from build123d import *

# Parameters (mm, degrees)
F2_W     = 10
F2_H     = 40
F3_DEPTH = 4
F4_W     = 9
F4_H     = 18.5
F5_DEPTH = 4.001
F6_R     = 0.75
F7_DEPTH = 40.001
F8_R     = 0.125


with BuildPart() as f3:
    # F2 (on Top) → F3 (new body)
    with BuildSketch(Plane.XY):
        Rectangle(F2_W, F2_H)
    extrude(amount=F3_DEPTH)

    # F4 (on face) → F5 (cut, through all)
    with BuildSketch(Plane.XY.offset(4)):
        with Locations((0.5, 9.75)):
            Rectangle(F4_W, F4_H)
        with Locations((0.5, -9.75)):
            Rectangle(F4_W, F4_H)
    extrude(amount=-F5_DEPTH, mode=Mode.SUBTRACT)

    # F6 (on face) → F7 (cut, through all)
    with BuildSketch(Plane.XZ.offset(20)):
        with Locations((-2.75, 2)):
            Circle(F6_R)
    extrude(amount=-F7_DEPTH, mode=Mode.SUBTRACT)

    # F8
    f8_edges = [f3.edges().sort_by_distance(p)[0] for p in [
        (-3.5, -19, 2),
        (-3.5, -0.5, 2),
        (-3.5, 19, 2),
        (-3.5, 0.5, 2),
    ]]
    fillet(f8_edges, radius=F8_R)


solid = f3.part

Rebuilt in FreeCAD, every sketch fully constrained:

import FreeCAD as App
import Part
import Sketcher
from FreeCAD import Vector


def edges_at(feature, points):
    """Names of the edges that pass closest to the given points."""
    edges = feature.Shape.Edges
    near = lambda p: min(range(len(edges)), key=lambda i: edges[i].distToShape(Part.Vertex(*p))[0])
    return sorted({f"Edge{near(p) + 1}" for p in points})


def add_polygon(sketch, points):
    """Adds a closed chain of lines whose ends are joined by coincident constraints."""
    first, n = sketch.GeometryCount, len(points)
    for a, b in zip(points, points[1:] + points[:1]):
        sketch.addGeometry(Part.LineSegment(App.Vector(*a, 0), App.Vector(*b, 0)), False)
    for i in range(n):
        sketch.addConstraint(Sketcher.Constraint("Coincident", first + i, 2, first + (i + 1) % n, 1))

doc = App.newDocument("Part")
body = doc.addObject("PartDesign::Body", "Body")

# Sketch on XY plane
sketch1 = body.newObject("Sketcher::SketchObject", "Sketch")
sketch1.AttachmentSupport = (doc.getObject("XY_Plane"), [""])
sketch1.MapMode = "FlatFace"
add_polygon(sketch1, [(-5, 20), (-5, -20), (5, -20), (5, 20)])  # lines 0-3
sketch1.addConstraint(Sketcher.Constraint("Vertical", 0))
sketch1.addConstraint(Sketcher.Constraint("Horizontal", 1))
sketch1.addConstraint(Sketcher.Constraint("Vertical", 2))
sketch1.addConstraint(Sketcher.Constraint("Horizontal", 3))
sketch1.addConstraint(Sketcher.Constraint("Symmetric", 0, 2, 2, 2, -1, 1))
sketch1.addConstraint(Sketcher.Constraint("DistanceX", 1, 1, 1, 2, 10.0))
sketch1.addConstraint(Sketcher.Constraint("DistanceY", 0, 2, 0, 1, 40.0))
pad1 = body.newObject("PartDesign::Pad", "Pad")
pad1.Profile = sketch1
pad1.Length = 4

# Sketch on XY plane
sketch2 = body.newObject("Sketcher::SketchObject", "Sketch001")
sketch2.AttachmentSupport = (doc.getObject("XY_Plane"), [""])
sketch2.MapMode = "FlatFace"
sketch2.AttachmentOffset = App.Placement(Vector(0, 0, 4), App.Rotation())
add_polygon(sketch2, [(-4, 19), (-4, 0.5), (5, 0.5), (5, 19)])  # lines 0-3
add_polygon(sketch2, [(-4, -0.5), (-4, -19), (5, -19), (5, -0.5)])  # lines 4-7
sketch2.addConstraint(Sketcher.Constraint("Vertical", 0))
sketch2.addConstraint(Sketcher.Constraint("Horizontal", 1))
sketch2.addConstraint(Sketcher.Constraint("Vertical", 2))
sketch2.addConstraint(Sketcher.Constraint("Horizontal", 3))
sketch2.addConstraint(Sketcher.Constraint("Vertical", 4))
sketch2.addConstraint(Sketcher.Constraint("Horizontal", 5))
sketch2.addConstraint(Sketcher.Constraint("Vertical", 6))
sketch2.addConstraint(Sketcher.Constraint("Horizontal", 7))
sketch2.addConstraint(Sketcher.Constraint("Symmetric", 3, 2, 4, 2, -1))
sketch2.addConstraint(Sketcher.Constraint("Symmetric", 1, 2, 6, 2, -1))
sketch2.addConstraint(Sketcher.Constraint("DistanceX", 1, 1, 1, 2, 9.0))
sketch2.addConstraint(Sketcher.Constraint("DistanceY", 0, 2, 0, 1, 18.5))
sketch2.addConstraint(Sketcher.Constraint("DistanceX", 0, 2, -1, 1, 4.0))
sketch2.addConstraint(Sketcher.Constraint("DistanceY", -1, 1, 2, 2, 19.0))
pocket1 = body.newObject("PartDesign::Pocket", "Pocket")
pocket1.Profile = sketch2
pocket1.Type = "ThroughAll"

# Sketch on XZ plane
sketch3 = body.newObject("Sketcher::SketchObject", "Sketch002")
sketch3.AttachmentSupport = (doc.getObject("XZ_Plane"), [""])
sketch3.MapMode = "FlatFace"
sketch3.AttachmentOffset = App.Placement(Vector(0, 0, 20), App.Rotation())
sketch3.addGeometry(Part.Circle(Vector(-2.75, 2, 0), Vector(0, 0, 1), 0.75), False)
sketch3.addConstraint(Sketcher.Constraint("Diameter", 0, 1.5))
sketch3.addConstraint(Sketcher.Constraint("DistanceY", -1, 1, 0, 3, 2.0))
sketch3.addConstraint(Sketcher.Constraint("DistanceX", 0, 3, -1, 1, 2.75))
pocket2 = body.newObject("PartDesign::Pocket", "Pocket001")
pocket2.Profile = sketch3
pocket2.Type = "ThroughAll"
doc.recompute()

fillet = body.newObject("PartDesign::Fillet", "Fillet")
fillet.Base = (pocket2, edges_at(pocket2, [
    (-3.5, -19, 2),
    (-3.5, -0.5, 2),
    (-3.5, 19, 2),
    (-3.5, 0.5, 2),
]))
fillet.Radius = 0.125

doc.recompute()
